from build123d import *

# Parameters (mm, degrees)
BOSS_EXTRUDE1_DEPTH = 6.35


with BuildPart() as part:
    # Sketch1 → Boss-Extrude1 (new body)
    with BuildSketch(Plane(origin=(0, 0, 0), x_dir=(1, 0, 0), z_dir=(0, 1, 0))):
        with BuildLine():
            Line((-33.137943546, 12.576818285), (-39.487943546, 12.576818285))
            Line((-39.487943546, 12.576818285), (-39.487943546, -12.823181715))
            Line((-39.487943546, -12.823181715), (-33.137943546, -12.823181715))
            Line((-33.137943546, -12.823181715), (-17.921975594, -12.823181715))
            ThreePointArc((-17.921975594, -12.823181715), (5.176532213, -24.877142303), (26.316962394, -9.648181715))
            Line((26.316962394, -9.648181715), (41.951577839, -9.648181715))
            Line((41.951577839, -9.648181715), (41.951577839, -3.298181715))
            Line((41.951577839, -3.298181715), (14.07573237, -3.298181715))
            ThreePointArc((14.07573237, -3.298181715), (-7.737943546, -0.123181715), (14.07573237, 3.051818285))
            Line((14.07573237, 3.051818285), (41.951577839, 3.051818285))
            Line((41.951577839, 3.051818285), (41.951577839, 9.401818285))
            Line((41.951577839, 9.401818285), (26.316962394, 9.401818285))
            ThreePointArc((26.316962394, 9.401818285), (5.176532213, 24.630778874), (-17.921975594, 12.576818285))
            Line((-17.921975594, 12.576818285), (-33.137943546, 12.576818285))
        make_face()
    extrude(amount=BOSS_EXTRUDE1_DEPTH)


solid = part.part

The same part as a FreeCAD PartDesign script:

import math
import FreeCAD as App
import Part
import Sketcher

V = App.Vector
Q = App.Units.Quantity

doc = App.newDocument("Part")
body = doc.addObject("PartDesign::Body", "Body")

# Sketch on XZ plane
sketch1 = doc.addObject("Sketcher::SketchObject", "Sketch")
body.addObject(sketch1)
sketch1.AttachmentSupport = (doc.XZ_Plane, [""])
sketch1.MapMode = "FlatFace"
sketch1.addGeometry([
    Part.LineSegment(V(-39, -13, 0), V(-39, 13, 0)),  # 0
    Part.LineSegment(V(-39, 13, 0), V(-18, 13, 0)),  # 1
    Part.ArcOfCircle(Part.Circle(V(3, 0, 0), V(0, 0, 1), 25), math.radians(23), math.radians(149)),  # 2
    Part.LineSegment(V(26, 10, 0), V(42, 10, 0)),  # 3
    Part.LineSegment(V(42, 10, 0), V(42, 3, 0)),  # 4
    Part.LineSegment(V(42, 3, 0), V(14, 3, 0)),  # 5
    Part.ArcOfCircle(Part.Circle(V(3, 0, 0), V(0, 0, 1), 11), math.radians(17), math.radians(343)),  # 6
    Part.LineSegment(V(14, -3, 0), V(42, -3, 0)),  # 7
    Part.LineSegment(V(42, -3, 0), V(42, -9, 0)),  # 8
    Part.LineSegment(V(42, -9, 0), V(26, -9, 0)),  # 9
    Part.ArcOfCircle(Part.Circle(V(3, 0, 0), V(0, 0, 1), 25), math.radians(-149), math.radians(-23)),  # 10
    Part.LineSegment(V(-18, -13, 0), V(-39, -13, 0)),  # 11
], False)
sketch1.addConstraint([
    Sketcher.Constraint("Coincident", 0, 2, 1, 1),
    Sketcher.Constraint("Coincident", 1, 2, 2, 2),
    Sketcher.Constraint("Coincident", 2, 1, 3, 1),
    Sketcher.Constraint("Coincident", 3, 2, 4, 1),
    Sketcher.Constraint("Coincident", 4, 2, 5, 1),
    Sketcher.Constraint("Coincident", 5, 2, 6, 1),
    Sketcher.Constraint("Coincident", 6, 2, 7, 1),
    Sketcher.Constraint("Coincident", 7, 2, 8, 1),
    Sketcher.Constraint("Coincident", 8, 2, 9, 1),
    Sketcher.Constraint("Coincident", 9, 2, 10, 2),
    Sketcher.Constraint("Coincident", 10, 1, 11, 1),
    Sketcher.Constraint("Coincident", 11, 2, 0, 1),
    Sketcher.Constraint("Vertical", 0),
    Sketcher.Constraint("Horizontal", 1),
    Sketcher.Constraint("Horizontal", 3),
    Sketcher.Constraint("Vertical", 4),
    Sketcher.Constraint("Horizontal", 5),
    Sketcher.Constraint("Horizontal", 7),
    Sketcher.Constraint("Vertical", 8),
    Sketcher.Constraint("Horizontal", 9),
    Sketcher.Constraint("Horizontal", 11),
    Sketcher.Constraint("Coincident", 6, 3, 2, 3),
    Sketcher.Constraint("Coincident", 10, 3, 2, 3),
    Sketcher.Constraint("Equal", 2, 10),
    Sketcher.Constraint("Vertical", 5, 2, 6, 2),
    Sketcher.Constraint("Vertical", 4, 2, 7, 2),
    Sketcher.Constraint("Vertical", 2, 1, 9, 2),
    Sketcher.Constraint("Vertical", 1, 2, 10, 1),
    Sketcher.Constraint("DistanceY", 0, 1, 0, 2, Q("1 in")),
    Sketcher.Constraint("DistanceY", 4, 2, 4, 1, Q("0.25 in")),
    Sketcher.Constraint("Radius", 6, Q("0.4385 in")),
    Sketcher.Constraint("DistanceY", 6, 2, 2, 1, Q("0.5 in")),
    Sketcher.Constraint("Radius", 2, Q("24.817631 mm")),
    Sketcher.Constraint("DistanceX", 0, 2, 6, 3, Q("1.6885 in")),
    Sketcher.Constraint("DistanceX", 3, 1, 3, 2, Q("15.634615 mm")),
    Sketcher.Constraint("DistanceY", -1, 1, 2, 3, Q("0.123182 mm")),
    Sketcher.Constraint("DistanceX", -1, 1, 2, 3, Q("3.399956 mm")),
])
pad1 = doc.addObject("PartDesign::Pad", "Pad")
body.addObject(pad1)
pad1.Profile = sketch1
pad1.Length = Q("0.25 in")
pad1.Reversed = True

doc.recompute()
